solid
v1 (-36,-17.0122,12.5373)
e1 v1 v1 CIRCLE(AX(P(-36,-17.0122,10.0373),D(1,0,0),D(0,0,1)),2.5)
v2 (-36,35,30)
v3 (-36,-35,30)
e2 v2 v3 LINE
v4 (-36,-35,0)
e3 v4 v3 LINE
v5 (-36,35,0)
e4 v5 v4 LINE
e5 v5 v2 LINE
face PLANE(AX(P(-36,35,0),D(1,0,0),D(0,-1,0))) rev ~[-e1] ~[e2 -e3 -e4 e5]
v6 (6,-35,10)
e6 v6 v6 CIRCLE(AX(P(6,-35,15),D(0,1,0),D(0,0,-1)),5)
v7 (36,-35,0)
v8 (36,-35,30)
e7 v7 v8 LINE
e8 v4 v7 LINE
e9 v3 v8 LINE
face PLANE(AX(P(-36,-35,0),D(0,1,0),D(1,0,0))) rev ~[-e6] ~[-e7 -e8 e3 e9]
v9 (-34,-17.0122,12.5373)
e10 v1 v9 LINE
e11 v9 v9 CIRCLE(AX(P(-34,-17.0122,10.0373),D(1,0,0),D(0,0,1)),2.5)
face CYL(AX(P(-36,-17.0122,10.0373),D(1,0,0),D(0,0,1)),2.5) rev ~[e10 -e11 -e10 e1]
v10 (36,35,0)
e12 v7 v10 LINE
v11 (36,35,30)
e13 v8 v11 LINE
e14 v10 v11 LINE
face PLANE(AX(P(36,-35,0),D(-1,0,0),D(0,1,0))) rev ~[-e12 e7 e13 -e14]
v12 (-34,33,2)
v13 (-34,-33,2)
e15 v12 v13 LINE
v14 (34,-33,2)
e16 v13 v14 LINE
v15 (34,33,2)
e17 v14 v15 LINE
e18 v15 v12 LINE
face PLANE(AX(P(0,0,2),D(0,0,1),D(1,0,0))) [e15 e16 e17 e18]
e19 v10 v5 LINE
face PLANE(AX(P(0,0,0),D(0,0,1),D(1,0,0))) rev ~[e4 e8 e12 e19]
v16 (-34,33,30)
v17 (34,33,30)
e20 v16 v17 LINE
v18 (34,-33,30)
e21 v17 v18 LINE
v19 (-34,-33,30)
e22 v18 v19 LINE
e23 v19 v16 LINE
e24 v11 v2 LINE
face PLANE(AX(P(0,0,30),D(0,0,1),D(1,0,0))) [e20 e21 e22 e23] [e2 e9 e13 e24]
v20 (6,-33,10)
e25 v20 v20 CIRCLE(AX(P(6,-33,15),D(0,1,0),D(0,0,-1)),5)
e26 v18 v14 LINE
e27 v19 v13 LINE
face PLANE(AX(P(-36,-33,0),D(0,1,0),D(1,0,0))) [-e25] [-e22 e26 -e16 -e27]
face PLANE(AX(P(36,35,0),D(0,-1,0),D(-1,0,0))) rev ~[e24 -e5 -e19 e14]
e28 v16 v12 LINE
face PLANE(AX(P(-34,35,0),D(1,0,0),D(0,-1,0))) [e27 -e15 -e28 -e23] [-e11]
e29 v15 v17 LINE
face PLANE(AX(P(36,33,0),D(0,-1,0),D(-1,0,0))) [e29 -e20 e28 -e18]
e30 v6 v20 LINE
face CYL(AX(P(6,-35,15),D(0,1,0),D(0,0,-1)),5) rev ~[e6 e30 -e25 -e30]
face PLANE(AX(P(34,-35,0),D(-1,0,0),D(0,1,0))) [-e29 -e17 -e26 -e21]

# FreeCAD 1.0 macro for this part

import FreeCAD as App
import Part
import Sketcher
from FreeCAD import Vector
Q = App.Units.Quantity


def faces_at(feature, points):
    """Names of the faces that lie closest to the given points."""
    faces = feature.Shape.Faces
    near = lambda p: min(range(len(faces)), key=lambda i: faces[i].distToShape(Part.Vertex(*p))[0])
    return sorted({f"Face{near(p) + 1}" for p in points})


def add_polygon(sketch, points):
    """Adds a closed chain of lines whose ends are joined by coincident constraints."""
    first, n = sketch.GeometryCount, len(points)
    for a, b in zip(points, points[1:] + points[:1]):
        sketch.addGeometry(Part.LineSegment(App.Vector(*a, 0), App.Vector(*b, 0)), False)
    for i in range(n):
        sketch.addConstraint(Sketcher.Constraint("Coincident", first + i, 2, first + (i + 1) % n, 1))

doc = App.newDocument("Part")
body = doc.addObject("PartDesign::Body", "Body")

# Sketch on XY plane
sketch1 = body.newObject("Sketcher::SketchObject", "Sketch")
sketch1.AttachmentSupport = (doc.getObject("XY_Plane"), [""])
sketch1.MapMode = "FlatFace"
add_polygon(sketch1, [(36, -35), (36, 35), (-36, 35), (-36, -35)])  # lines 0-3
sketch1.addConstraint([
    Sketcher.Constraint("Vertical", 0),
    Sketcher.Constraint("Horizontal", 1),
    Sketcher.Constraint("Vertical", 2),
    Sketcher.Constraint("Horizontal", 3),
    Sketcher.Constraint("Symmetric", 0, 2, 2, 2, -1, 1),
    Sketcher.Constraint("DistanceX", 1, 2, 1, 1, Q("72 mm")),
    Sketcher.Constraint("DistanceY", 0, 1, 0, 2, Q("70 mm")),
])
pad1 = body.newObject("PartDesign::Pad", "Pad")
pad1.Profile = sketch1
pad1.Length = 30
doc.recompute()

thickness = body.newObject("PartDesign::Thickness", "Thickness")
thickness.Base = (pad1, faces_at(pad1, [(-12, 11.667, 30)]))
thickness.Value = 2
thickness.Reversed = True
thickness.Join = "Intersection"

# Sketch on YZ plane
sketch2 = body.newObject("Sketcher::SketchObject", "Sketch001")
sketch2.AttachmentSupport = (doc.getObject("YZ_Plane"), [""])
sketch2.MapMode = "FlatFace"
sketch2.AttachmentOffset = App.Placement(Vector(0, 0, -36), App.Rotation())
sketch2.addGeometry(Part.Circle(Vector(-17.0122, 10.0373, 0), Vector(0, 0, 1), 2.5), False)
sketch2.addConstraint([
    Sketcher.Constraint("Diameter", 0, Q("5 mm")),
    Sketcher.Constraint("DistanceX", 0, 3, -1, 1, Q("17.0122 mm")),
    Sketcher.Constraint("DistanceY", -1, 1, 0, 3, Q("10.0373 mm")),
])
doc.recompute()
hole = body.newObject("PartDesign::Hole", "Hole")
hole.Profile = sketch2
hole.ThreadType = "None"
hole.Diameter = 5
hole.DepthType = "Dimension"
hole.Depth = 2
hole.DrillPoint = "Angled"
hole.DrillPointAngle = 118
hole.Reversed = True

# Sketch on XZ plane
sketch3 = body.newObject("Sketcher::SketchObject", "Sketch002")
sketch3.AttachmentSupport = (doc.getObject("XZ_Plane"), [""])
sketch3.MapMode = "FlatFace"
sketch3.AttachmentOffset = App.Placement(Vector(0, 0, 35), App.Rotation())
sketch3.addGeometry(Part.Circle(Vector(6, 15, 0), Vector(0, 0, 1), 5), False)
sketch3.addConstraint([
    Sketcher.Constraint("Diameter", 0, Q("10 mm")),
    Sketcher.Constraint("DistanceX", -1, 1, 0, 3, Q("6 mm")),
    Sketcher.Constraint("DistanceY", -1, 1, 0, 3, Q("15 mm")),
])
doc.recompute()
hole2 = body.newObject("PartDesign::Hole", "Hole001")
hole2.Profile = sketch3
hole2.ThreadType = "None"
hole2.Diameter = 10
hole2.DepthType = "Dimension"
hole2.Depth = 2
hole2.DrillPoint = "Angled"
hole2.DrillPointAngle = 118

doc.recompute()
